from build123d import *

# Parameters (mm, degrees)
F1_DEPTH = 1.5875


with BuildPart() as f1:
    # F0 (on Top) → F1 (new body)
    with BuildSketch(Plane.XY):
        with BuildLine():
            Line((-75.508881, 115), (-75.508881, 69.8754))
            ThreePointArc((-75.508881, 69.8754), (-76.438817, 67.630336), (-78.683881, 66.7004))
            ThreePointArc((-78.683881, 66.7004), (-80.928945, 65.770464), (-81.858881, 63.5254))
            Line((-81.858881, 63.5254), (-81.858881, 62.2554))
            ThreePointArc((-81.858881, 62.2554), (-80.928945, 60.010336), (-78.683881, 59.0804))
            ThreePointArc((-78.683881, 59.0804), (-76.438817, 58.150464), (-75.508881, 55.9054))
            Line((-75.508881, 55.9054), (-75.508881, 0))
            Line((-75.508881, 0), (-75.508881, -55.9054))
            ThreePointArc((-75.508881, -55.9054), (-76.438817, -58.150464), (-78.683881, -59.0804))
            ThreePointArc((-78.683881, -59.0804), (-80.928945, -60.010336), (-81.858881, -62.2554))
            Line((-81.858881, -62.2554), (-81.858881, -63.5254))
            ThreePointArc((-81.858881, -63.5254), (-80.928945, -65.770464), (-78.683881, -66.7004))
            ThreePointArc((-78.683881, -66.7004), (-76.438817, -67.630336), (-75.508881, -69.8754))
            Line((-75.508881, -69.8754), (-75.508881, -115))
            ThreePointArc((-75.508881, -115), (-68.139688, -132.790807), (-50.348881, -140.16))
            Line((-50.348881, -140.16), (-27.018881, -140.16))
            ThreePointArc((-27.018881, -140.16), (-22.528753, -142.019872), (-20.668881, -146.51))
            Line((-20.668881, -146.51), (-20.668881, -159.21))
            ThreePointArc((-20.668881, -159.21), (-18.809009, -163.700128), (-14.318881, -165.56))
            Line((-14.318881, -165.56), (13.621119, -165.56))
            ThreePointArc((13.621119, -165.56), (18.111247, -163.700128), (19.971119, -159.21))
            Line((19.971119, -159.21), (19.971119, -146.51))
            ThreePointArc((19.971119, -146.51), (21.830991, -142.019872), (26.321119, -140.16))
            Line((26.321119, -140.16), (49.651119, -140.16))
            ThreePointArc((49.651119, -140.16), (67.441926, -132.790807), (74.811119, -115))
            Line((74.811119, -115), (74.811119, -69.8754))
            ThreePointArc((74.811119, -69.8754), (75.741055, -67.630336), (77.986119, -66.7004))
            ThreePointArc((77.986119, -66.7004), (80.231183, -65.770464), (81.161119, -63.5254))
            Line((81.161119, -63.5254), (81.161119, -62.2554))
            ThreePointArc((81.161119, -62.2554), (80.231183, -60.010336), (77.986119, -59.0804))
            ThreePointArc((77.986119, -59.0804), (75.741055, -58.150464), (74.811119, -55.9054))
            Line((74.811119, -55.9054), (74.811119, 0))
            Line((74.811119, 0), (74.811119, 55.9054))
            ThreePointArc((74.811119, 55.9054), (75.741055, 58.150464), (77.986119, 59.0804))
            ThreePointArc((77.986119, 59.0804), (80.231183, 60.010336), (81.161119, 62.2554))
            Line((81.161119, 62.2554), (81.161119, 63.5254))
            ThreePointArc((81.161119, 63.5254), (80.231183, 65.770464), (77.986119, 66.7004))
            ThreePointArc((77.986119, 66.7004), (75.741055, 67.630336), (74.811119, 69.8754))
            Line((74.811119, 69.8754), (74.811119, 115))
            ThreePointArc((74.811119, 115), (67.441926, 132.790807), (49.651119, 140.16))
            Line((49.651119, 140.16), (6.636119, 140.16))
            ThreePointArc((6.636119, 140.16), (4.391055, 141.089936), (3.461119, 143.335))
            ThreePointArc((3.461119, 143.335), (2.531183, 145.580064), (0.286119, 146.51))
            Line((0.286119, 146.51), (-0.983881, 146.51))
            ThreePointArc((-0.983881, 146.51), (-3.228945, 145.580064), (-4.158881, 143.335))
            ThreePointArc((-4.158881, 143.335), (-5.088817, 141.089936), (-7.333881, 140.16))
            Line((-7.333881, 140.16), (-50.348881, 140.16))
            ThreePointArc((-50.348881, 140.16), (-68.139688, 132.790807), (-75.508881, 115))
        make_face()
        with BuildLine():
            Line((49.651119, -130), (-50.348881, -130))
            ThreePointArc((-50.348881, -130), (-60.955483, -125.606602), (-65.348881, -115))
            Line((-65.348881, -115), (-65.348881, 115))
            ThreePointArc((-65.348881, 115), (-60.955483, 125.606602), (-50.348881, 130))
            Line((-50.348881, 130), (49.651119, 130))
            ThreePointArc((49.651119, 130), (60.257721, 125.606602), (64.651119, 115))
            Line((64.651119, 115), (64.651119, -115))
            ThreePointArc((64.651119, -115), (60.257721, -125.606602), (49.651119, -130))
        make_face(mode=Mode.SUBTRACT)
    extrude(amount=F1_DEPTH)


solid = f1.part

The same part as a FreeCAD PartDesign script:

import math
import FreeCAD as App
import Part
import Sketcher
from FreeCAD import Vector
Q = App.Units.Quantity

doc = App.newDocument("Part")
body = doc.addObject("PartDesign::Body", "Body")

sketch1 = body.newObject("Sketcher::SketchObject", "Sketch")
sketch1.AttachmentSupport = (doc.getObject("XY_Plane"), [""])
sketch1.MapMode = "FlatFace"
sketch1.addGeometry(Part.LineSegment(Vector(-75.5, 115, 0), Vector(-75.5, 69.9, 0)), False)
sketch1.addGeometry(Part.ArcOfCircle(Part.Circle(Vector(-78.7, 69.9, 0), Vector(0, 0, 1), 3.2), math.radians(-90), math.radians(0)), False)
sketch1.addGeometry(Part.ArcOfCircle(Part.Circle(Vector(-78.7, 63.5, 0), Vector(0, 0, 1), 3.2), math.radians(90), math.radians(180)), False)
sketch1.addGeometry(Part.LineSegment(Vector(-81.9, 63.5, 0), Vector(-81.9, 62.3, 0)), False)
sketch1.addGeometry(Part.ArcOfCircle(Part.Circle(Vector(-78.7, 62.3, 0), Vector(0, 0, 1), 3.2), math.radians(-180), math.radians(-90)), False)
sketch1.addGeometry(Part.ArcOfCircle(Part.Circle(Vector(-78.7, 55.9, 0), Vector(0, 0, 1), 3.2), math.radians(0), math.radians(90)), False)
sketch1.addGeometry(Part.LineSegment(Vector(-75.5, 55.9, 0), Vector(-75.5, -55.9, 0)), False)
sketch1.addGeometry(Part.ArcOfCircle(Part.Circle(Vector(-78.7, -55.9, 0), Vector(0, 0, 1), 3.2), math.radians(-90), math.radians(0)), False)
sketch1.addGeometry(Part.ArcOfCircle(Part.Circle(Vector(-78.7, -62.3, 0), Vector(0, 0, 1), 3.2), math.radians(90), math.radians(180)), False)
sketch1.addGeometry(Part.LineSegment(Vector(-81.9, -62.3, 0), Vector(-81.9, -63.5, 0)), False)
sketch1.addGeometry(Part.ArcOfCircle(Part.Circle(Vector(-78.7, -63.5, 0), Vector(0, 0, 1), 3.2), math.radians(-180), math.radians(-90)), False)
sketch1.addGeometry(Part.ArcOfCircle(Part.Circle(Vector(-78.7, -69.9, 0), Vector(0, 0, 1), 3.2), math.radians(0), math.radians(90)), False)
sketch1.addGeometry(Part.LineSegment(Vector(-75.5, -69.9, 0), Vector(-75.5, -115, 0)), False)
sketch1.addGeometry(Part.ArcOfCircle(Part.Circle(Vector(-50.3, -115, 0), Vector(0, 0, 1), 25.2), math.radians(180), math.radians(270)), False)
sketch1.addGeometry(Part.LineSegment(Vector(-50.3, -140.2, 0), Vector(-27, -140.2, 0)), False)
sketch1.addGeometry(Part.ArcOfCircle(Part.Circle(Vector(-27, -146.5, 0), Vector(0, 0, 1), 6.4), math.radians(0), math.radians(90)), False)
sketch1.addGeometry(Part.LineSegment(Vector(-20.7, -146.5, 0), Vector(-20.7, -159.2, 0)), False)
sketch1.addGeometry(Part.ArcOfCircle(Part.Circle(Vector(-14.3, -159.2, 0), Vector(0, 0, 1), 6.4), math.radians(-180), math.radians(-90)), False)
sketch1.addGeometry(Part.LineSegment(Vector(-14.3, -165.6, 0), Vector(13.6, -165.6, 0)), False)
sketch1.addGeometry(Part.ArcOfCircle(Part.Circle(Vector(13.6, -159.2, 0), Vector(0, 0, 1), 6.4), math.radians(-90), math.radians(0)), False)
sketch1.addGeometry(Part.LineSegment(Vector(20, -159.2, 0), Vector(20, -146.5, 0)), False)
sketch1.addGeometry(Part.ArcOfCircle(Part.Circle(Vector(26.3, -146.5, 0), Vector(0, 0, 1), 6.4), math.radians(90), math.radians(180)), False)
sketch1.addGeometry(Part.LineSegment(Vector(26.3, -140.2, 0), Vector(49.7, -140.2, 0)), False)
sketch1.addGeometry(Part.ArcOfCircle(Part.Circle(Vector(49.7, -115, 0), Vector(0, 0, 1), 25.2), math.radians(-90), math.radians(0)), False)
sketch1.addGeometry(Part.LineSegment(Vector(74.8, -115, 0), Vector(74.8, -69.9, 0)), False)
sketch1.addGeometry(Part.ArcOfCircle(Part.Circle(Vector(78, -69.9, 0), Vector(0, 0, 1), 3.2), math.radians(90), math.radians(180)), False)
sketch1.addGeometry(Part.ArcOfCircle(Part.Circle(Vector(78, -63.5, 0), Vector(0, 0, 1), 3.2), math.radians(-90), math.radians(0)), False)
sketch1.addGeometry(Part.LineSegment(Vector(81.2, -63.5, 0), Vector(81.2, -62.3, 0)), False)
sketch1.addGeometry(Part.ArcOfCircle(Part.Circle(Vector(78, -62.3, 0), Vector(0, 0, 1), 3.2), math.radians(0), math.radians(90)), False)
sketch1.addGeometry(Part.ArcOfCircle(Part.Circle(Vector(78, -55.9, 0), Vector(0, 0, 1), 3.2), math.radians(-180), math.radians(-90)), False)
sketch1.addGeometry(Part.LineSegment(Vector(74.8, -55.9, 0), Vector(74.8, 55.9, 0)), False)
sketch1.addGeometry(Part.ArcOfCircle(Part.Circle(Vector(78, 55.9, 0), Vector(0, 0, 1), 3.2), math.radians(90), math.radians(180)), False)
sketch1.addGeometry(Part.ArcOfCircle(Part.Circle(Vector(78, 62.3, 0), Vector(0, 0, 1), 3.2), math.radians(-90), math.radians(0)), False)
sketch1.addGeometry(Part.LineSegment(Vector(81.2, 62.3, 0), Vector(81.2, 63.5, 0)), False)
sketch1.addGeometry(Part.ArcOfCircle(Part.Circle(Vector(78, 63.5, 0), Vector(0, 0, 1), 3.2), math.radians(0), math.radians(90)), False)
sketch1.addGeometry(Part.ArcOfCircle(Part.Circle(Vector(78, 69.9, 0), Vector(0, 0, 1), 3.2), math.radians(-180), math.radians(-90)), False)
sketch1.addGeometry(Part.LineSegment(Vector(74.8, 69.9, 0), Vector(74.8, 115, 0)), False)
sketch1.addGeometry(Part.ArcOfCircle(Part.Circle(Vector(49.7, 115, 0), Vector(0, 0, 1), 25.2), math.radians(0), math.radians(90)), False)
sketch1.addGeometry(Part.LineSegment(Vector(49.7, 140.2, 0), Vector(6.6, 140.2, 0)), False)
sketch1.addGeometry(Part.ArcOfCircle(Part.Circle(Vector(6.6, 143.3, 0), Vector(0, 0, 1), 3.2), math.radians(-180), math.radians(-90)), False)
sketch1.addGeometry(Part.ArcOfCircle(Part.Circle(Vector(0.3, 143.3, 0), Vector(0, 0, 1), 3.2), math.radians(0), math.radians(90)), False)
sketch1.addGeometry(Part.LineSegment(Vector(0.3, 146.5, 0), Vector(-1, 146.5, 0)), False)
sketch1.addGeometry(Part.ArcOfCircle(Part.Circle(Vector(-1, 143.3, 0), Vector(0, 0, 1), 3.2), math.radians(90), math.radians(180)), False)
sketch1.addGeometry(Part.ArcOfCircle(Part.Circle(Vector(-7.3, 143.3, 0), Vector(0, 0, 1), 3.2), math.radians(-90), math.radians(0)), False)
sketch1.addGeometry(Part.LineSegment(Vector(-7.3, 140.2, 0), Vector(-50.3, 140.2, 0)), False)
sketch1.addGeometry(Part.ArcOfCircle(Part.Circle(Vector(-50.3, 115, 0), Vector(0, 0, 1), 25.2), math.radians(90), math.radians(180)), False)
sketch1.addGeometry(Part.ArcOfCircle(Part.Circle(Vector(49.7, -115, 0), Vector(0, 0, 1), 15), math.radians(-90), math.radians(0)), False)
sketch1.addGeometry(Part.LineSegment(Vector(49.7, -130, 0), Vector(-50.3, -130, 0)), False)
sketch1.addGeometry(Part.ArcOfCircle(Part.Circle(Vector(-50.3, -115, 0), Vector(0, 0, 1), 15), math.radians(180), math.radians(270)), False)
sketch1.addGeometry(Part.LineSegment(Vector(-65.3, -115, 0), Vector(-65.3, 115, 0)), False)
sketch1.addGeometry(Part.ArcOfCircle(Part.Circle(Vector(-50.3, 115, 0), Vector(0, 0, 1), 15), math.radians(90), math.radians(180)), False)
sketch1.addGeometry(Part.LineSegment(Vector(-50.3, 130, 0), Vector(49.7, 130, 0)), False)
sketch1.addGeometry(Part.ArcOfCircle(Part.Circle(Vector(49.7, 115, 0), Vector(0, 0, 1), 15), math.radians(0), math.radians(90)), False)
sketch1.addGeometry(Part.LineSegment(Vector(64.7, 115, 0), Vector(64.7, -115, 0)), False)
sketch1.addConstraint(Sketcher.Constraint("Tangent", 0, 2, 1, 2))
sketch1.addConstraint(Sketcher.Constraint("Tangent", 1, 1, 2, 1))
sketch1.addConstraint(Sketcher.Constraint("Tangent", 2, 2, 3, 1))
sketch1.addConstraint(Sketcher.Constraint("Tangent", 3, 2, 4, 1))
sketch1.addConstraint(Sketcher.Constraint("Tangent", 4, 2, 5, 2))
sketch1.addConstraint(Sketcher.Constraint("Tangent", 5, 1, 6, 1))
sketch1.addConstraint(Sketcher.Constraint("Tangent", 6, 2, 7, 2))
sketch1.addConstraint(Sketcher.Constraint("Tangent", 7, 1, 8, 1))
sketch1.addConstraint(Sketcher.Constraint("Tangent", 8, 2, 9, 1))
sketch1.addConstraint(Sketcher.Constraint("Tangent", 9, 2, 10, 1))
sketch1.addConstraint(Sketcher.Constraint("Tangent", 10, 2, 11, 2))
sketch1.addConstraint(Sketcher.Constraint("Tangent", 11, 1, 12, 1))
sketch1.addConstraint(Sketcher.Constraint("Tangent", 12, 2, 13, 1))
sketch1.addConstraint(Sketcher.Constraint("Tangent", 13, 2, 14, 1))
sketch1.addConstraint(Sketcher.Constraint("Tangent", 14, 2, 15, 2))
sketch1.addConstraint(Sketcher.Constraint("Tangent", 15, 1, 16, 1))
sketch1.addConstraint(Sketcher.Constraint("Tangent", 16, 2, 17, 1))
sketch1.addConstraint(Sketcher.Constraint("Tangent", 17, 2, 18, 1))
sketch1.addConstraint(Sketcher.Constraint("Tangent", 18, 2, 19, 1))
sketch1.addConstraint(Sketcher.Constraint("Tangent", 19, 2, 20, 1))
sketch1.addConstraint(Sketcher.Constraint("Tangent", 20, 2, 21, 2))
sketch1.addConstraint(Sketcher.Constraint("Tangent", 21, 1, 22, 1))
sketch1.addConstraint(Sketcher.Constraint("Tangent", 22, 2, 23, 1))
sketch1.addConstraint(Sketcher.Constraint("Tangent", 23, 2, 24, 1))
sketch1.addConstraint(Sketcher.Constraint("Tangent", 24, 2, 25, 2))
sketch1.addConstraint(Sketcher.Constraint("Tangent", 25, 1, 26, 1))
sketch1.addConstraint(Sketcher.Constraint("Tangent", 26, 2, 27, 1))
sketch1.addConstraint(Sketcher.Constraint("Tangent", 27, 2, 28, 1))
sketch1.addConstraint(Sketcher.Constraint("Tangent", 28, 2, 29, 2))
sketch1.addConstraint(Sketcher.Constraint("Tangent", 29, 1, 30, 1))
sketch1.addConstraint(Sketcher.Constraint("Tangent", 30, 2, 31, 2))
sketch1.addConstraint(Sketcher.Constraint("Tangent", 31, 1, 32, 1))
sketch1.addConstraint(Sketcher.Constraint("Tangent", 32, 2, 33, 1))
sketch1.addConstraint(Sketcher.Constraint("Tangent", 33, 2, 34, 1))
sketch1.addConstraint(Sketcher.Constraint("Tangent", 34, 2, 35, 2))
sketch1.addConstraint(Sketcher.Constraint("Tangent", 35, 1, 36, 1))
sketch1.addConstraint(Sketcher.Constraint("Tangent", 36, 2, 37, 1))
sketch1.addConstraint(Sketcher.Constraint("Tangent", 37, 2, 38, 1))
sketch1.addConstraint(Sketcher.Constraint("Tangent", 38, 2, 39, 2))
sketch1.addConstraint(Sketcher.Constraint("Tangent", 39, 1, 40, 1))
sketch1.addConstraint(Sketcher.Constraint("Tangent", 40, 2, 41, 1))
sketch1.addConstraint(Sketcher.Constraint("Tangent", 41, 2, 42, 1))
sketch1.addConstraint(Sketcher.Constraint("Tangent", 42, 2, 43, 2))
sketch1.addConstraint(Sketcher.Constraint("Tangent", 43, 1, 44, 1))
sketch1.addConstraint(Sketcher.Constraint("Tangent", 44, 2, 45, 1))
sketch1.addConstraint(Sketcher.Constraint("Tangent", 45, 2, 0, 1))
sketch1.addConstraint(Sketcher.Constraint("Tangent", 46, 1, 47, 1))
sketch1.addConstraint(Sketcher.Constraint("Tangent", 47, 2, 48, 2))
sketch1.addConstraint(Sketcher.Constraint("Tangent", 48, 1, 49, 1))
sketch1.addConstraint(Sketcher.Constraint("Tangent", 49, 2, 50, 2))
sketch1.addConstraint(Sketcher.Constraint("Tangent", 50, 1, 51, 1))
sketch1.addConstraint(Sketcher.Constraint("Tangent", 51, 2, 52, 2))
sketch1.addConstraint(Sketcher.Constraint("Tangent", 52, 1, 53, 1))
sketch1.addConstraint(Sketcher.Constraint("Tangent", 53, 2, 46, 2))
sketch1.addConstraint(Sketcher.Constraint("Vertical", 0))
sketch1.addConstraint(Sketcher.Constraint("Vertical", 3))
sketch1.addConstraint(Sketcher.Constraint("Vertical", 6))
sketch1.addConstraint(Sketcher.Constraint("Vertical", 9))
sketch1.addConstraint(Sketcher.Constraint("Vertical", 12))
sketch1.addConstraint(Sketcher.Constraint("Horizontal", 14))
sketch1.addConstraint(Sketcher.Constraint("Vertical", 16))
sketch1.addConstraint(Sketcher.Constraint("Horizontal", 18))
sketch1.addConstraint(Sketcher.Constraint("Vertical", 20))
sketch1.addConstraint(Sketcher.Constraint("Horizontal", 22))
sketch1.addConstraint(Sketcher.Constraint("Vertical", 24))
sketch1.addConstraint(Sketcher.Constraint("Vertical", 27))
sketch1.addConstraint(Sketcher.Constraint("Vertical", 30))
sketch1.addConstraint(Sketcher.Constraint("Vertical", 33))
sketch1.addConstraint(Sketcher.Constraint("Vertical", 36))
sketch1.addConstraint(Sketcher.Constraint("Horizontal", 38))
sketch1.addConstraint(Sketcher.Constraint("Horizontal", 41))
sketch1.addConstraint(Sketcher.Constraint("Horizontal", 44))
sketch1.addConstraint(Sketcher.Constraint("Horizontal", 47))
sketch1.addConstraint(Sketcher.Constraint("Vertical", 49))
sketch1.addConstraint(Sketcher.Constraint("Horizontal", 51))
sketch1.addConstraint(Sketcher.Constraint("Vertical", 53))
sketch1.addConstraint(Sketcher.Constraint("Coincident", 46, 3, 23, 3))
sketch1.addConstraint(Sketcher.Constraint("Coincident", 48, 3, 13, 3))
sketch1.addConstraint(Sketcher.Constraint("Coincident", 50, 3, 45, 3))
sketch1.addConstraint(Sketcher.Constraint("Coincident", 52, 3, 37, 3))
sketch1.addConstraint(Sketcher.Constraint("Equal", 1, 2))
sketch1.addConstraint(Sketcher.Constraint("Equal", 2, 4))
sketch1.addConstraint(Sketcher.Constraint("Equal", 4, 5))
sketch1.addConstraint(Sketcher.Constraint("Equal", 5, 7))
sketch1.addConstraint(Sketcher.Constraint("Equal", 7, 8))
sketch1.addConstraint(Sketcher.Constraint("Equal", 8, 10))
sketch1.addConstraint(Sketcher.Constraint("Equal", 10, 11))
sketch1.addConstraint(Sketcher.Constraint("Equal", 15, 17))
sketch1.addConstraint(Sketcher.Constraint("Equal", 17, 19))
sketch1.addConstraint(Sketcher.Constraint("Equal", 19, 21))
sketch1.addConstraint(Sketcher.Constraint("Equal", 13, 23))
sketch1.addConstraint(Sketcher.Constraint("Equal", 11, 25))
sketch1.addConstraint(Sketcher.Constraint("Equal", 25, 26))
sketch1.addConstraint(Sketcher.Constraint("Equal", 26, 28))
sketch1.addConstraint(Sketcher.Constraint("Equal", 28, 29))
sketch1.addConstraint(Sketcher.Constraint("Equal", 29, 31))
sketch1.addConstraint(Sketcher.Constraint("Equal", 31, 32))
sketch1.addConstraint(Sketcher.Constraint("Equal", 32, 34))
sketch1.addConstraint(Sketcher.Constraint("Equal", 34, 35))
sketch1.addConstraint(Sketcher.Constraint("Equal", 23, 37))
sketch1.addConstraint(Sketcher.Constraint("Equal", 35, 39))
sketch1.addConstraint(Sketcher.Constraint("Equal", 39, 40))
sketch1.addConstraint(Sketcher.Constraint("Equal", 40, 42))
sketch1.addConstraint(Sketcher.Constraint("Equal", 42, 43))
sketch1.addConstraint(Sketcher.Constraint("Equal", 37, 45))
sketch1.addConstraint(Sketcher.Constraint("Equal", 46, 48))
sketch1.addConstraint(Sketcher.Constraint("Equal", 48, 50))
sketch1.addConstraint(Sketcher.Constraint("Equal", 50, 52))
sketch1.addConstraint(Sketcher.Constraint("Symmetric", 4, 3, 8, 3, -1))
sketch1.addConstraint(Sketcher.Constraint("Symmetric", 28, 3, 32, 3, -1))
sketch1.addConstraint(Sketcher.Constraint("Horizontal", 11, 3, 25, 3))
sketch1.addConstraint(Sketcher.Constraint("Horizontal", 8, 3, 28, 3))
sketch1.addConstraint(Sketcher.Constraint("Horizontal", 2, 3, 34, 3))
sketch1.addConstraint(Sketcher.Constraint("Horizontal", 39, 3, 40, 3))
sketch1.addConstraint(Sketcher.Constraint("Vertical", 1, 3, 2, 3))
sketch1.addConstraint(Sketcher.Constraint("Vertical", 4, 3, 5, 3))
sketch1.addConstraint(Sketcher.Constraint("Vertical", 25, 3, 26, 3))
sketch1.addConstraint(Sketcher.Constraint("Vertical", 28, 3, 29, 3))
sketch1.addConstraint(Sketcher.Constraint("Equal", 14, 22))
sketch1.addConstraint(Sketcher.Constraint("Equal", 38, 44))
sketch1.addConstraint(Sketcher.Constraint("Equal", 41, 3))
sketch1.addConstraint(Sketcher.Constraint("Equal", 3, 9))
sketch1.addConstraint(Sketcher.Constraint("Equal", 0, 12))
sketch1.addConstraint(Sketcher.Constraint("Radius", 15, Q("0.25 in")))
sketch1.addConstraint(Sketcher.Constraint("DistanceX", 18, 1, 18, 2, Q("1.1 in")))
sketch1.addConstraint(Sketcher.Constraint("DistanceY", 16, 2, 16, 1, Q("0.5 in")))
sketch1.addConstraint(Sketcher.Constraint("Radius", 1, Q("0.125 in")))
sketch1.addConstraint(Sketcher.Constraint("DistanceX", 41, 2, 41, 1, Q("0.05 in")))
sketch1.addConstraint(Sketcher.Constraint("DistanceY", 6, 2, 6, 1, Q("4.402 in")))
sketch1.addConstraint(Sketcher.Constraint("Radius", 13, Q("25.159999 mm")))
sketch1.addConstraint(Sketcher.Constraint("Radius", 46, Q("14.999999 mm")))
sketch1.addConstraint(Sketcher.Constraint("DistanceX", 14, 1, 14, 2, Q("23.33 mm")))
sketch1.addConstraint(Sketcher.Constraint("DistanceY", 0, 2, 0, 1, Q("45.1246 mm")))
sketch1.addConstraint(Sketcher.Constraint("DistanceX", 1, 3, -1, 1, Q("78.683881 mm")))
pad1 = body.newObject("PartDesign::Pad", "Pad")
pad1.Profile = sketch1
pad1.Length = Q("0.0625 in")

doc.recompute()
